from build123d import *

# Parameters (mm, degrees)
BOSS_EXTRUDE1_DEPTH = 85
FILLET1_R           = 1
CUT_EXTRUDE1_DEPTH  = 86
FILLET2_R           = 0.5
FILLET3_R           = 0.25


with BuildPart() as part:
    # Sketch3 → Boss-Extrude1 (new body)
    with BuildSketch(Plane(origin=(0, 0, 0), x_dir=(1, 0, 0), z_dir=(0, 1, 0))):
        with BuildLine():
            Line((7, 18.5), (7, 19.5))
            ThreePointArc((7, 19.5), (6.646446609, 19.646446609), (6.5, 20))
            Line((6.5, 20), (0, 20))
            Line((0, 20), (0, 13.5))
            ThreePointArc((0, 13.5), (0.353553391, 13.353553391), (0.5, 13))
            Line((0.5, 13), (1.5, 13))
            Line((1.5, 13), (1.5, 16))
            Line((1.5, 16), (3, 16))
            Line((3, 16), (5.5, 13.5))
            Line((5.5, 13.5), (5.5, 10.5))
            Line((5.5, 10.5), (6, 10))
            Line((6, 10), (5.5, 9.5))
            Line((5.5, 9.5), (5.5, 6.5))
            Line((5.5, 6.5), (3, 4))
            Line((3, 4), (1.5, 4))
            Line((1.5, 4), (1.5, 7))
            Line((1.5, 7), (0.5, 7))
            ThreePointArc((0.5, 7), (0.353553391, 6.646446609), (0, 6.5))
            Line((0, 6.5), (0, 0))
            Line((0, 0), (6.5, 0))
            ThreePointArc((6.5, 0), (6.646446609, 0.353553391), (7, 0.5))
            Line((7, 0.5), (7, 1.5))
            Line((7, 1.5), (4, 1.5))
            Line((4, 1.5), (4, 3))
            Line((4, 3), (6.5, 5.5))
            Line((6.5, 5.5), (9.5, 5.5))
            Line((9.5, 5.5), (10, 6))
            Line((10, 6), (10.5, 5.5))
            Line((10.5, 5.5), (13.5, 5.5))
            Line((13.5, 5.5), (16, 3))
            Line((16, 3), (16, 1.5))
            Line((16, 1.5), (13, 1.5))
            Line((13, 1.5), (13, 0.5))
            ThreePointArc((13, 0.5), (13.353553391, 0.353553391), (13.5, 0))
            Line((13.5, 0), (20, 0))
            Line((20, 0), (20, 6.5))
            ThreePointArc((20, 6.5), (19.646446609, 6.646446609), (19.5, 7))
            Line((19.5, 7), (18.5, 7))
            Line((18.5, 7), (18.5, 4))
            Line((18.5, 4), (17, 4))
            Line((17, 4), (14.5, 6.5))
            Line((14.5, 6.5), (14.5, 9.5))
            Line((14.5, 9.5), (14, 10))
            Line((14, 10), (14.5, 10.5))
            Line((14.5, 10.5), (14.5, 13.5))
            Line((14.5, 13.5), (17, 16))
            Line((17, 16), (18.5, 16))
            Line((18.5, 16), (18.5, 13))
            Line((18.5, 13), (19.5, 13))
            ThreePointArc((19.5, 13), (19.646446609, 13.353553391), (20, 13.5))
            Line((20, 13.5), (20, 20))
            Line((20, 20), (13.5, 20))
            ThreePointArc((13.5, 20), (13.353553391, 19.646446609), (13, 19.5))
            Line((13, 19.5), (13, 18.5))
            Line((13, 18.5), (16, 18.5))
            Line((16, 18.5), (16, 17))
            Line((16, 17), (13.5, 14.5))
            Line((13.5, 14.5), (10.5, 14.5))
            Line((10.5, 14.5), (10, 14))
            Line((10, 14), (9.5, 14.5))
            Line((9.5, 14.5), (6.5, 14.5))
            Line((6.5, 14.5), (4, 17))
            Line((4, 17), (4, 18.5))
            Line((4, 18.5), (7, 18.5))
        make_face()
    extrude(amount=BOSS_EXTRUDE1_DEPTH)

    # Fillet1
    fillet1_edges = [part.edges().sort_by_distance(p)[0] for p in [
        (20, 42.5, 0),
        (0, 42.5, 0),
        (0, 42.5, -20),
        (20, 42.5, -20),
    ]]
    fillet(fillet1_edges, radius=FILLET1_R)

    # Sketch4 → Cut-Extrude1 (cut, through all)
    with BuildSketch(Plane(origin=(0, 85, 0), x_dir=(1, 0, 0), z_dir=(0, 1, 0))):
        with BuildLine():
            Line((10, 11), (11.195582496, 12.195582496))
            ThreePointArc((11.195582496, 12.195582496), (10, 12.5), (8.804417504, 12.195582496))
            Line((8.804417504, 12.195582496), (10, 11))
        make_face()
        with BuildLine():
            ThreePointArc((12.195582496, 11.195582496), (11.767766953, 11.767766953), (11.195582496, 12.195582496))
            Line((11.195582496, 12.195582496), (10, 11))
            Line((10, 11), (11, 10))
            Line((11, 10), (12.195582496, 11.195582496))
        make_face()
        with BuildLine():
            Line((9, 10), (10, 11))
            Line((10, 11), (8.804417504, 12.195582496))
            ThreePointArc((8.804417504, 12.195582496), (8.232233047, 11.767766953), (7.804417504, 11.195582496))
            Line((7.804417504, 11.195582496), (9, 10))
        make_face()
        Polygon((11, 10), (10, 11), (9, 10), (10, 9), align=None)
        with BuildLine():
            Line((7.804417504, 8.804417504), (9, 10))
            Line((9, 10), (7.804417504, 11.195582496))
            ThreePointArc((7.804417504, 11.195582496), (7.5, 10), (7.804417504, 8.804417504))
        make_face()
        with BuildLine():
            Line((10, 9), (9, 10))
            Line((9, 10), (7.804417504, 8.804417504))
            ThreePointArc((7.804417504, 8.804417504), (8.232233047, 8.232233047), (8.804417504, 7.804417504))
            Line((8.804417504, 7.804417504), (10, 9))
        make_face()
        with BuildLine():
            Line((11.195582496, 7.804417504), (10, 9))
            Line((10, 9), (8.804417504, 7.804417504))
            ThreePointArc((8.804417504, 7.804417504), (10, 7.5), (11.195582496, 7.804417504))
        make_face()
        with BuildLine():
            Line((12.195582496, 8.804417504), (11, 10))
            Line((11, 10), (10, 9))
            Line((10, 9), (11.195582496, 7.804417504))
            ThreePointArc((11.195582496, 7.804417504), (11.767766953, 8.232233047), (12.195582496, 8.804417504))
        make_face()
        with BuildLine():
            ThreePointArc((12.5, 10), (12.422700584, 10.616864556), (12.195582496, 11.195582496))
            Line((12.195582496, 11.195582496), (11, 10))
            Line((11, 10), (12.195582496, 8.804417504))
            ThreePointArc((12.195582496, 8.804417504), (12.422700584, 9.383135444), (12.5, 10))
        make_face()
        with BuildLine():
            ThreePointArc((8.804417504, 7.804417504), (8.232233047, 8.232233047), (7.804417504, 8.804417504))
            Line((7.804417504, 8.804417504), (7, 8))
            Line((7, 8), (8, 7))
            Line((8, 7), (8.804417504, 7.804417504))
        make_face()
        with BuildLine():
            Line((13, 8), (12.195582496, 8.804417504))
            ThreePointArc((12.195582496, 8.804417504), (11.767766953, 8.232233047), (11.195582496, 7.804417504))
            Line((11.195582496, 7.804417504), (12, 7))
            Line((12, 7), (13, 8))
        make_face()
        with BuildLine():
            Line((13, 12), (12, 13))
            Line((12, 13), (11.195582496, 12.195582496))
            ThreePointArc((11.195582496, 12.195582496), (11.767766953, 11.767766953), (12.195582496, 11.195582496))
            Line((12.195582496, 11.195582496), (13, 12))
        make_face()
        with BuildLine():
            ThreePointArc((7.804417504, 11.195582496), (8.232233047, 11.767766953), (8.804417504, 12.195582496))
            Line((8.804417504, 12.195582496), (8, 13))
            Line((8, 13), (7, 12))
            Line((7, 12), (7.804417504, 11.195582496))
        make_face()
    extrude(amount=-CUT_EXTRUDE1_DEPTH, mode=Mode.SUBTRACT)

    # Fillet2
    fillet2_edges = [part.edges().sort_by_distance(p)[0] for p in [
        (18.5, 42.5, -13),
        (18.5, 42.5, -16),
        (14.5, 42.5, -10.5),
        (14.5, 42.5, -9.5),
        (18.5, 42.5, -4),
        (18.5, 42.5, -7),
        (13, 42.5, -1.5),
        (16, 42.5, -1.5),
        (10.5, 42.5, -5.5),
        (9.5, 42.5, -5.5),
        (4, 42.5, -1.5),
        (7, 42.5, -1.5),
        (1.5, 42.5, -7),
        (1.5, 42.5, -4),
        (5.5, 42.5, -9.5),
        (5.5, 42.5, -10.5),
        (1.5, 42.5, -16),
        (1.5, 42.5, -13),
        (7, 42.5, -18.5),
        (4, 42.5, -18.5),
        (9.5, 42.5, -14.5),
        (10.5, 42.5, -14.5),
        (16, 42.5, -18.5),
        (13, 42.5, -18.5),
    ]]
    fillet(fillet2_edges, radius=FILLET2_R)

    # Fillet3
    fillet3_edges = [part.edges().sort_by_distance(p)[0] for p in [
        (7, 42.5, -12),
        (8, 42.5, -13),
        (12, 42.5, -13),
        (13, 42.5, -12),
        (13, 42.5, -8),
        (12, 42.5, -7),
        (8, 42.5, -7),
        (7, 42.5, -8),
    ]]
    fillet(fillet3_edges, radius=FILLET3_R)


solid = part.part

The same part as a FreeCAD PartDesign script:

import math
import FreeCAD as App
import Part
import Sketcher
Q = App.Units.Quantity


def edges_at(feature, points):
    """Names of the edges that pass closest to the given points."""
    edges = feature.Shape.Edges
    near = lambda p: min(range(len(edges)), key=lambda i: edges[i].distToShape(Part.Vertex(*p))[0])
    return sorted({f"Edge{near(p) + 1}" for p in points})

doc = App.newDocument("Part")
body = doc.addObject("PartDesign::Body", "Body")

# Sketch on XZ plane
sketch1 = doc.addObject("Sketcher::SketchObject", "Sketch")
body.addObject(sketch1)
sketch1.AttachmentSupport = (doc.XZ_Plane, [""])
sketch1.MapMode = "FlatFace"
sketch1.addGeometry(Part.LineSegment(App.Vector(7, -18.5, 0), App.Vector(7, -19.5, 0)), False)
sketch1.addGeometry(Part.ArcOfCircle(Part.Circle(App.Vector(7, -20, 0), App.Vector(0, 0, 1), 0.5), math.radians(90), math.radians(180)), False)
sketch1.addGeometry(Part.LineSegment(App.Vector(6.5, -20, 0), App.Vector(0, -20, 0)), False)
sketch1.addGeometry(Part.LineSegment(App.Vector(0, -20, 0), App.Vector(0, -13.5, 0)), False)
sketch1.addGeometry(Part.ArcOfCircle(Part.Circle(App.Vector(0, -13, 0), App.Vector(0, 0, 1), 0.5), math.radians(-90), math.radians(0)), False)
sketch1.addGeometry(Part.LineSegment(App.Vector(0.5, -13, 0), App.Vector(1.5, -13, 0)), False)
sketch1.addGeometry(Part.LineSegment(App.Vector(1.5, -13, 0), App.Vector(1.5, -16, 0)), False)
sketch1.addGeometry(Part.LineSegment(App.Vector(1.5, -16, 0), App.Vector(3, -16, 0)), False)
sketch1.addGeometry(Part.LineSegment(App.Vector(3, -16, 0), App.Vector(5.5, -13.5, 0)), False)
sketch1.addGeometry(Part.LineSegment(App.Vector(5.5, -13.5, 0), App.Vector(5.5, -10.5, 0)), False)
sketch1.addGeometry(Part.LineSegment(App.Vector(5.5, -10.5, 0), App.Vector(6, -10, 0)), False)
sketch1.addGeometry(Part.LineSegment(App.Vector(6, -10, 0), App.Vector(5.5, -9.5, 0)), False)
sketch1.addGeometry(Part.LineSegment(App.Vector(5.5, -9.5, 0), App.Vector(5.5, -6.5, 0)), False)
sketch1.addGeometry(Part.LineSegment(App.Vector(5.5, -6.5, 0), App.Vector(3, -4, 0)), False)
sketch1.addGeometry(Part.LineSegment(App.Vector(3, -4, 0), App.Vector(1.5, -4, 0)), False)
sketch1.addGeometry(Part.LineSegment(App.Vector(1.5, -4, 0), App.Vector(1.5, -7, 0)), False)
sketch1.addGeometry(Part.LineSegment(App.Vector(1.5, -7, 0), App.Vector(0.5, -7, 0)), False)
sketch1.addGeometry(Part.ArcOfCircle(Part.Circle(App.Vector(0, -7, 0), App.Vector(0, 0, 1), 0.5), math.radians(0), math.radians(90)), False)
sketch1.addGeometry(Part.LineSegment(App.Vector(0, -6.5, 0), App.Vector(0, 0, 0)), False)
sketch1.addGeometry(Part.LineSegment(App.Vector(0, 0, 0), App.Vector(6.5, 0, 0)), False)
sketch1.addGeometry(Part.ArcOfCircle(Part.Circle(App.Vector(7, 0, 0), App.Vector(0, 0, 1), 0.5), math.radians(180), math.radians(270)), False)
sketch1.addGeometry(Part.LineSegment(App.Vector(7, -0.5, 0), App.Vector(7, -1.5, 0)), False)
sketch1.addGeometry(Part.LineSegment(App.Vector(7, -1.5, 0), App.Vector(4, -1.5, 0)), False)
sketch1.addGeometry(Part.LineSegment(App.Vector(4, -1.5, 0), App.Vector(4, -3, 0)), False)
sketch1.addGeometry(Part.LineSegment(App.Vector(4, -3, 0), App.Vector(6.5, -5.5, 0)), False)
sketch1.addGeometry(Part.LineSegment(App.Vector(6.5, -5.5, 0), App.Vector(9.5, -5.5, 0)), False)
sketch1.addGeometry(Part.LineSegment(App.Vector(9.5, -5.5, 0), App.Vector(10, -6, 0)), False)
sketch1.addGeometry(Part.LineSegment(App.Vector(10, -6, 0), App.Vector(10.5, -5.5, 0)), False)
sketch1.addGeometry(Part.LineSegment(App.Vector(10.5, -5.5, 0), App.Vector(13.5, -5.5, 0)), False)
sketch1.addGeometry(Part.LineSegment(App.Vector(13.5, -5.5, 0), App.Vector(16, -3, 0)), False)
sketch1.addGeometry(Part.LineSegment(App.Vector(16, -3, 0), App.Vector(16, -1.5, 0)), False)
sketch1.addGeometry(Part.LineSegment(App.Vector(16, -1.5, 0), App.Vector(13, -1.5, 0)), False)
sketch1.addGeometry(Part.LineSegment(App.Vector(13, -1.5, 0), App.Vector(13, -0.5, 0)), False)
sketch1.addGeometry(Part.ArcOfCircle(Part.Circle(App.Vector(13, 0, 0), App.Vector(0, 0, 1), 0.5), math.radians(-90), math.radians(0)), False)
sketch1.addGeometry(Part.LineSegment(App.Vector(13.5, 0, 0), App.Vector(20, 0, 0)), False)
sketch1.addGeometry(Part.LineSegment(App.Vector(20, 0, 0), App.Vector(20, -6.5, 0)), False)
sketch1.addGeometry(Part.ArcOfCircle(Part.Circle(App.Vector(20, -7, 0), App.Vector(0, 0, 1), 0.5), math.radians(90), math.radians(180)), False)
sketch1.addGeometry(Part.LineSegment(App.Vector(19.5, -7, 0), App.Vector(18.5, -7, 0)), False)
sketch1.addGeometry(Part.LineSegment(App.Vector(18.5, -7, 0), App.Vector(18.5, -4, 0)), False)
sketch1.addGeometry(Part.LineSegment(App.Vector(18.5, -4, 0), App.Vector(17, -4, 0)), False)
sketch1.addGeometry(Part.LineSegment(App.Vector(17, -4, 0), App.Vector(14.5, -6.5, 0)), False)
sketch1.addGeometry(Part.LineSegment(App.Vector(14.5, -6.5, 0), App.Vector(14.5, -9.5, 0)), False)
sketch1.addGeometry(Part.LineSegment(App.Vector(14.5, -9.5, 0), App.Vector(14, -10, 0)), False)
sketch1.addGeometry(Part.LineSegment(App.Vector(14, -10, 0), App.Vector(14.5, -10.5, 0)), False)
sketch1.addGeometry(Part.LineSegment(App.Vector(14.5, -10.5, 0), App.Vector(14.5, -13.5, 0)), False)
sketch1.addGeometry(Part.LineSegment(App.Vector(14.5, -13.5, 0), App.Vector(17, -16, 0)), False)
sketch1.addGeometry(Part.LineSegment(App.Vector(17, -16, 0), App.Vector(18.5, -16, 0)), False)
sketch1.addGeometry(Part.LineSegment(App.Vector(18.5, -16, 0), App.Vector(18.5, -13, 0)), False)
sketch1.addGeometry(Part.LineSegment(App.Vector(18.5, -13, 0), App.Vector(19.5, -13, 0)), False)
sketch1.addGeometry(Part.ArcOfCircle(Part.Circle(App.Vector(20, -13, 0), App.Vector(0, 0, 1), 0.5), math.radians(180), math.radians(270)), False)
sketch1.addGeometry(Part.LineSegment(App.Vector(20, -13.5, 0), App.Vector(20, -20, 0)), False)
sketch1.addGeometry(Part.LineSegment(App.Vector(20, -20, 0), App.Vector(13.5, -20, 0)), False)
sketch1.addGeometry(Part.ArcOfCircle(Part.Circle(App.Vector(13, -20, 0), App.Vector(0, 0, 1), 0.5), math.radians(0), math.radians(90)), False)
sketch1.addGeometry(Part.LineSegment(App.Vector(13, -19.5, 0), App.Vector(13, -18.5, 0)), False)
sketch1.addGeometry(Part.LineSegment(App.Vector(13, -18.5, 0), App.Vector(16, -18.5, 0)), False)
sketch1.addGeometry(Part.LineSegment(App.Vector(16, -18.5, 0), App.Vector(16, -17, 0)), False)
sketch1.addGeometry(Part.LineSegment(App.Vector(16, -17, 0), App.Vector(13.5, -14.5, 0)), False)
sketch1.addGeometry(Part.LineSegment(App.Vector(13.5, -14.5, 0), App.Vector(10.5, -14.5, 0)), False)
sketch1.addGeometry(Part.LineSegment(App.Vector(10.5, -14.5, 0), App.Vector(10, -14, 0)), False)
sketch1.addGeometry(Part.LineSegment(App.Vector(10, -14, 0), App.Vector(9.5, -14.5, 0)), False)
sketch1.addGeometry(Part.LineSegment(App.Vector(9.5, -14.5, 0), App.Vector(6.5, -14.5, 0)), False)
sketch1.addGeometry(Part.LineSegment(App.Vector(6.5, -14.5, 0), App.Vector(4, -17, 0)), False)
sketch1.addGeometry(Part.LineSegment(App.Vector(4, -17, 0), App.Vector(4, -18.5, 0)), False)
sketch1.addGeometry(Part.LineSegment(App.Vector(4, -18.5, 0), App.Vector(7, -18.5, 0)), False)
sketch1.addConstraint(Sketcher.Constraint("Coincident", 0, 2, 1, 1))
sketch1.addConstraint(Sketcher.Constraint("Coincident", 1, 2, 2, 1))
sketch1.addConstraint(Sketcher.Constraint("Coincident", 2, 2, 3, 1))
sketch1.addConstraint(Sketcher.Constraint("Coincident", 3, 2, 4, 1))
sketch1.addConstraint(Sketcher.Constraint("Coincident", 4, 2, 5, 1))
sketch1.addConstraint(Sketcher.Constraint("Coincident", 5, 2, 6, 1))
sketch1.addConstraint(Sketcher.Constraint("Coincident", 6, 2, 7, 1))
sketch1.addConstraint(Sketcher.Constraint("Coincident", 7, 2, 8, 1))
sketch1.addConstraint(Sketcher.Constraint("Coincident", 8, 2, 9, 1))
sketch1.addConstraint(Sketcher.Constraint("Coincident", 9, 2, 10, 1))
sketch1.addConstraint(Sketcher.Constraint("Coincident", 10, 2, 11, 1))
sketch1.addConstraint(Sketcher.Constraint("Coincident", 11, 2, 12, 1))
sketch1.addConstraint(Sketcher.Constraint("Coincident", 12, 2, 13, 1))
sketch1.addConstraint(Sketcher.Constraint("Coincident", 13, 2, 14, 1))
sketch1.addConstraint(Sketcher.Constraint("Coincident", 14, 2, 15, 1))
sketch1.addConstraint(Sketcher.Constraint("Coincident", 15, 2, 16, 1))
sketch1.addConstraint(Sketcher.Constraint("Coincident", 16, 2, 17, 1))
sketch1.addConstraint(Sketcher.Constraint("Coincident", 17, 2, 18, 1))
sketch1.addConstraint(Sketcher.Constraint("Coincident", 18, 2, 19, 1))
sketch1.addConstraint(Sketcher.Constraint("Coincident", 19, 2, 20, 1))
sketch1.addConstraint(Sketcher.Constraint("Coincident", 20, 2, 21, 1))
sketch1.addConstraint(Sketcher.Constraint("Coincident", 21, 2, 22, 1))
sketch1.addConstraint(Sketcher.Constraint("Coincident", 22, 2, 23, 1))
sketch1.addConstraint(Sketcher.Constraint("Coincident", 23, 2, 24, 1))
sketch1.addConstraint(Sketcher.Constraint("Coincident", 24, 2, 25, 1))
sketch1.addConstraint(Sketcher.Constraint("Coincident", 25, 2, 26, 1))
sketch1.addConstraint(Sketcher.Constraint("Coincident", 26, 2, 27, 1))
sketch1.addConstraint(Sketcher.Constraint("Coincident", 27, 2, 28, 1))
sketch1.addConstraint(Sketcher.Constraint("Coincident", 28, 2, 29, 1))
sketch1.addConstraint(Sketcher.Constraint("Coincident", 29, 2, 30, 1))
sketch1.addConstraint(Sketcher.Constraint("Coincident", 30, 2, 31, 1))
sketch1.addConstraint(Sketcher.Constraint("Coincident", 31, 2, 32, 1))
sketch1.addConstraint(Sketcher.Constraint("Coincident", 32, 2, 33, 1))
sketch1.addConstraint(Sketcher.Constraint("Coincident", 33, 2, 34, 1))
sketch1.addConstraint(Sketcher.Constraint("Coincident", 34, 2, 35, 1))
sketch1.addConstraint(Sketcher.Constraint("Coincident", 35, 2, 36, 1))
sketch1.addConstraint(Sketcher.Constraint("Coincident", 36, 2, 37, 1))
sketch1.addConstraint(Sketcher.Constraint("Coincident", 37, 2, 38, 1))
sketch1.addConstraint(Sketcher.Constraint("Coincident", 38, 2, 39, 1))
sketch1.addConstraint(Sketcher.Constraint("Coincident", 39, 2, 40, 1))
sketch1.addConstraint(Sketcher.Constraint("Coincident", 40, 2, 41, 1))
sketch1.addConstraint(Sketcher.Constraint("Coincident", 41, 2, 42, 1))
sketch1.addConstraint(Sketcher.Constraint("Coincident", 42, 2, 43, 1))
sketch1.addConstraint(Sketcher.Constraint("Coincident", 43, 2, 44, 1))
sketch1.addConstraint(Sketcher.Constraint("Coincident", 44, 2, 45, 1))
sketch1.addConstraint(Sketcher.Constraint("Coincident", 45, 2, 46, 1))
sketch1.addConstraint(Sketcher.Constraint("Coincident", 46, 2, 47, 1))
sketch1.addConstraint(Sketcher.Constraint("Coincident", 47, 2, 48, 1))
sketch1.addConstraint(Sketcher.Constraint("Coincident", 48, 2, 49, 1))
sketch1.addConstraint(Sketcher.Constraint("Coincident", 49, 2, 50, 1))
sketch1.addConstraint(Sketcher.Constraint("Coincident", 50, 2, 51, 1))
sketch1.addConstraint(Sketcher.Constraint("Coincident", 51, 2, 52, 1))
sketch1.addConstraint(Sketcher.Constraint("Coincident", 52, 2, 53, 1))
sketch1.addConstraint(Sketcher.Constraint("Coincident", 53, 2, 54, 1))
sketch1.addConstraint(Sketcher.Constraint("Coincident", 54, 2, 55, 1))
sketch1.addConstraint(Sketcher.Constraint("Coincident", 55, 2, 56, 1))
sketch1.addConstraint(Sketcher.Constraint("Coincident", 56, 2, 57, 1))
sketch1.addConstraint(Sketcher.Constraint("Coincident", 57, 2, 58, 1))
sketch1.addConstraint(Sketcher.Constraint("Coincident", 58, 2, 59, 1))
sketch1.addConstraint(Sketcher.Constraint("Coincident", 59, 2, 60, 1))
sketch1.addConstraint(Sketcher.Constraint("Coincident", 60, 2, 61, 1))
sketch1.addConstraint(Sketcher.Constraint("Coincident", 61, 2, 62, 1))
sketch1.addConstraint(Sketcher.Constraint("Coincident", 62, 2, 63, 1))
sketch1.addConstraint(Sketcher.Constraint("Coincident", 63, 2, 0, 1))
sketch1.addConstraint(Sketcher.Constraint("Vertical", 0))
sketch1.addConstraint(Sketcher.Constraint("Horizontal", 2))
sketch1.addConstraint(Sketcher.Constraint("Vertical", 3))
sketch1.addConstraint(Sketcher.Constraint("Horizontal", 5))
sketch1.addConstraint(Sketcher.Constraint("Vertical", 6))
sketch1.addConstraint(Sketcher.Constraint("Horizontal", 7))
sketch1.addConstraint(Sketcher.Constraint("Vertical", 9))
sketch1.addConstraint(Sketcher.Constraint("Vertical", 12))
sketch1.addConstraint(Sketcher.Constraint("Horizontal", 14))
sketch1.addConstraint(Sketcher.Constraint("Vertical", 15))
sketch1.addConstraint(Sketcher.Constraint("Horizontal", 16))
sketch1.addConstraint(Sketcher.Constraint("Vertical", 18))
sketch1.addConstraint(Sketcher.Constraint("Horizontal", 19))
sketch1.addConstraint(Sketcher.Constraint("Vertical", 21))
sketch1.addConstraint(Sketcher.Constraint("Horizontal", 22))
sketch1.addConstraint(Sketcher.Constraint("Vertical", 23))
sketch1.addConstraint(Sketcher.Constraint("Horizontal", 25))
sketch1.addConstraint(Sketcher.Constraint("Horizontal", 28))
sketch1.addConstraint(Sketcher.Constraint("Vertical", 30))
sketch1.addConstraint(Sketcher.Constraint("Horizontal", 31))
sketch1.addConstraint(Sketcher.Constraint("Vertical", 32))
sketch1.addConstraint(Sketcher.Constraint("Horizontal", 34))
sketch1.addConstraint(Sketcher.Constraint("Vertical", 35))
sketch1.addConstraint(Sketcher.Constraint("Horizontal", 37))
sketch1.addConstraint(Sketcher.Constraint("Vertical", 38))
sketch1.addConstraint(Sketcher.Constraint("Horizontal", 39))
sketch1.addConstraint(Sketcher.Constraint("Vertical", 41))
sketch1.addConstraint(Sketcher.Constraint("Vertical", 44))
sketch1.addConstraint(Sketcher.Constraint("Horizontal", 46))
sketch1.addConstraint(Sketcher.Constraint("Vertical", 47))
sketch1.addConstraint(Sketcher.Constraint("Horizontal", 48))
sketch1.addConstraint(Sketcher.Constraint("Vertical", 50))
sketch1.addConstraint(Sketcher.Constraint("Horizontal", 51))
sketch1.addConstraint(Sketcher.Constraint("Vertical", 53))
sketch1.addConstraint(Sketcher.Constraint("Horizontal", 54))
sketch1.addConstraint(Sketcher.Constraint("Vertical", 55))
sketch1.addConstraint(Sketcher.Constraint("Horizontal", 57))
sketch1.addConstraint(Sketcher.Constraint("Horizontal", 60))
sketch1.addConstraint(Sketcher.Constraint("Vertical", 62))
sketch1.addConstraint(Sketcher.Constraint("Horizontal", 63))
sketch1.addConstraint(Sketcher.Constraint("Coincident", 18, 2, -1, 1))
sketch1.addConstraint(Sketcher.Constraint("Equal", 1, 4))
sketch1.addConstraint(Sketcher.Constraint("Equal", 4, 17))
sketch1.addConstraint(Sketcher.Constraint("Equal", 17, 20))
sketch1.addConstraint(Sketcher.Constraint("Equal", 20, 33))
sketch1.addConstraint(Sketcher.Constraint("Equal", 33, 36))
sketch1.addConstraint(Sketcher.Constraint("Equal", 36, 49))
sketch1.addConstraint(Sketcher.Constraint("Equal", 49, 52))
sketch1.addConstraint(Sketcher.Constraint("PointOnObject", 4, 3, -2))
sketch1.addConstraint(Sketcher.Constraint("PointOnObject", 17, 3, -2))
sketch1.addConstraint(Sketcher.Constraint("PointOnObject", 20, 3, -1))
sketch1.addConstraint(Sketcher.Constraint("PointOnObject", 33, 3, -1))
sketch1.addConstraint(Sketcher.Constraint("PointOnObject", 2, 2, -2))
sketch1.addConstraint(Sketcher.Constraint("PointOnObject", 33, 2, -1))
sketch1.addConstraint(Sketcher.Constraint("Parallel", 8, 10))
sketch1.addConstraint(Sketcher.Constraint("Perpendicular", 10, 11))
sketch1.addConstraint(Sketcher.Constraint("Parallel", 11, 13))
sketch1.addConstraint(Sketcher.Constraint("Parallel", 13, 24))
sketch1.addConstraint(Sketcher.Constraint("Parallel", 24, 26))
sketch1.addConstraint(Sketcher.Constraint("Perpendicular", 26, 27))
sketch1.addConstraint(Sketcher.Constraint("Parallel", 27, 29))
sketch1.addConstraint(Sketcher.Constraint("Parallel", 29, 40))
sketch1.addConstraint(Sketcher.Constraint("Parallel", 40, 42))
sketch1.addConstraint(Sketcher.Constraint("Perpendicular", 42, 43))
sketch1.addConstraint(Sketcher.Constraint("Parallel", 43, 45))
sketch1.addConstraint(Sketcher.Constraint("Parallel", 45, 56))
sketch1.addConstraint(Sketcher.Constraint("Parallel", 56, 58))
sketch1.addConstraint(Sketcher.Constraint("Perpendicular", 58, 59))
sketch1.addConstraint(Sketcher.Constraint("Parallel", 59, 61))
sketch1.addConstraint(Sketcher.Constraint("Horizontal", 17, 3, 36, 3))
sketch1.addConstraint(Sketcher.Constraint("Horizontal", 4, 3, 49, 3))
sketch1.addConstraint(Sketcher.Constraint("Horizontal", 1, 3, 52, 3))
sketch1.addConstraint(Sketcher.Constraint("Horizontal", 52, 3, 1, 2))
sketch1.addConstraint(Sketcher.Constraint("Horizontal", 49, 3, 4, 2))
sketch1.addConstraint(Sketcher.Constraint("Horizontal", 3, 2, 8, 2))
sketch1.addConstraint(Sketcher.Constraint("Horizontal", 36, 3, 15, 2))
sketch1.addConstraint(Sketcher.Constraint("Horizontal", 12, 2, 17, 2))
sketch1.addConstraint(Sketcher.Constraint("Horizontal", 25, 2, 27, 2))
sketch1.addConstraint(Sketcher.Constraint("Horizontal", 23, 2, 29, 2))
sketch1.addConstraint(Sketcher.Constraint("Horizontal", 22, 2, 30, 2))
sketch1.addConstraint(Sketcher.Constraint("Horizontal", 16, 2, 36, 2))
sketch1.addConstraint(Sketcher.Constraint("Horizontal", 14, 2, 38, 2))
sketch1.addConstraint(Sketcher.Constraint("Horizontal", 35, 2, 40, 2))
sketch1.addConstraint(Sketcher.Constraint("Horizontal", 11, 2, 41, 2))
sketch1.addConstraint(Sketcher.Constraint("Horizontal", 10, 2, 42, 2))
sketch1.addConstraint(Sketcher.Constraint("Horizontal", 9, 2, 43, 2))
sketch1.addConstraint(Sketcher.Constraint("Horizontal", 8, 2, 44, 2))
sketch1.addConstraint(Sketcher.Constraint("Horizontal", 7, 2, 45, 2))
sketch1.addConstraint(Sketcher.Constraint("Horizontal", 5, 2, 47, 2))
sketch1.addConstraint(Sketcher.Constraint("Horizontal", 2, 2, 50, 2))
sketch1.addConstraint(Sketcher.Constraint("Horizontal", 57, 2, 59, 2))
sketch1.addConstraint(Sketcher.Constraint("Horizontal", 55, 2, 61, 2))
sketch1.addConstraint(Sketcher.Constraint("Horizontal", 54, 2, 62, 2))
sketch1.addConstraint(Sketcher.Constraint("Vertical", 1, 3, 20, 3))
sketch1.addConstraint(Sketcher.Constraint("Vertical", 36, 3, 49, 3))
sketch1.addConstraint(Sketcher.Constraint("Vertical", 33, 3, 52, 3))
sketch1.addConstraint(Sketcher.Constraint("Vertical", 20, 3, 0, 2))
sketch1.addConstraint(Sketcher.Constraint("Vertical", 9, 2, 11, 2))
sketch1.addConstraint(Sketcher.Constraint("Vertical", 7, 2, 13, 2))
sketch1.addConstraint(Sketcher.Constraint("Vertical", 6, 2, 14, 2))
sketch1.addConstraint(Sketcher.Constraint("Vertical", 0, 2, 20, 2))
sketch1.addConstraint(Sketcher.Constraint("Vertical", 19, 2, 24, 2))
sketch1.addConstraint(Sketcher.Constraint("Vertical", 52, 3, 31, 2))
sketch1.addConstraint(Sketcher.Constraint("Vertical", 28, 2, 33, 2))
sketch1.addConstraint(Sketcher.Constraint("Vertical", 49, 3, 34, 2))
sketch1.addConstraint(Sketcher.Constraint("Vertical", 41, 2, 43, 2))
sketch1.addConstraint(Sketcher.Constraint("Vertical", 38, 2, 46, 2))
sketch1.addConstraint(Sketcher.Constraint("Vertical", 35, 2, 49, 2))
sketch1.addConstraint(Sketcher.Constraint("Vertical", 32, 2, 52, 2))
sketch1.addConstraint(Sketcher.Constraint("Vertical", 30, 2, 54, 2))
sketch1.addConstraint(Sketcher.Constraint("Vertical", 51, 2, 56, 2))
sketch1.addConstraint(Sketcher.Constraint("Vertical", 27, 2, 57, 2))
sketch1.addConstraint(Sketcher.Constraint("Vertical", 26, 2, 58, 2))
sketch1.addConstraint(Sketcher.Constraint("Vertical", 24, 2, 60, 2))
sketch1.addConstraint(Sketcher.Constraint("Equal", 22, 25))
sketch1.addConstraint(Sketcher.Constraint("Equal", 25, 28))
sketch1.addConstraint(Sketcher.Constraint("Equal", 19, 34))
sketch1.addConstraint(Sketcher.Constraint("Equal", 16, 37))
sketch1.addConstraint(Sketcher.Constraint("Equal", 14, 39))
sketch1.addConstraint(Sketcher.Constraint("Equal", 48, 0))
sketch1.addConstraint(Sketcher.Constraint("Equal", 51, 3))
sketch1.addConstraint(Sketcher.Constraint("Equal", 63, 6))
sketch1.addConstraint(Sketcher.Constraint("Equal", 6, 9))
sketch1.addConstraint(Sketcher.Constraint("Equal", 9, 12))
sketch1.addConstraint(Sketcher.Constraint("Equal", 3, 18))
sketch1.addConstraint(Sketcher.Constraint("Equal", 0, 21))
sketch1.addConstraint(Sketcher.Constraint("Equal", 46, 23))
sketch1.addConstraint(Sketcher.Constraint("Equal", 30, 55))
sketch1.addConstraint(Sketcher.Constraint("Equal", 11, 26))
sketch1.addConstraint(Sketcher.Constraint("Radius", 1, Q("0.5 mm")))
sketch1.addConstraint(Sketcher.Constraint("DistanceX", 5, 1, 5, 2, Q("1 mm")))
sketch1.addConstraint(Sketcher.Constraint("DistanceX", 22, 2, 22, 1, Q("3 mm")))
sketch1.addConstraint(Sketcher.Constraint("DistanceX", 2, 2, 2, 1, Q("6.5 mm")))
sketch1.addConstraint(Sketcher.Constraint("DistanceX", 7, 1, 7, 2, Q("1.5 mm")))
sketch1.addConstraint(Sketcher.Constraint("DistanceY", 1, 3, -1, 1, Q("20 mm")))
pad1 = doc.addObject("PartDesign::Pad", "Pad")
body.addObject(pad1)
pad1.Profile = sketch1
pad1.Length = 85
pad1.Reversed = True
doc.recompute()

fillet = doc.addObject("PartDesign::Fillet", "Fillet")
body.addObject(fillet)
fillet.Base = (pad1, edges_at(pad1, [
    (20, 42.5, 0),
    (0, 42.5, 0),
    (0, 42.5, -20),
    (20, 42.5, -20),
]))
fillet.Radius = 1

# Sketch on XZ plane
sketch2 = doc.addObject("Sketcher::SketchObject", "Sketch001")
body.addObject(sketch2)
sketch2.AttachmentSupport = (doc.XZ_Plane, [""])
sketch2.MapMode = "FlatFace"
sketch2.AttachmentOffset = App.Placement(App.Vector(0, 0, -85), App.Rotation())
sketch2.addGeometry(Part.ArcOfCircle(Part.Circle(App.Vector(10, -10, 0), App.Vector(0, 0, 1), 2.5), math.radians(-119), math.radians(-61)), False)
sketch2.addGeometry(Part.LineSegment(App.Vector(8.8, -12.2, 0), App.Vector(8, -13, 0)), False)
sketch2.addGeometry(Part.LineSegment(App.Vector(8, -13, 0), App.Vector(7, -12, 0)), False)
sketch2.addGeometry(Part.LineSegment(App.Vector(7, -12, 0), App.Vector(7.8, -11.2, 0)), False)
sketch2.addGeometry(Part.ArcOfCircle(Part.Circle(App.Vector(10, -10, 0), App.Vector(0, 0, 1), 2.5), math.radians(151), math.radians(209)), False)
sketch2.addGeometry(Part.LineSegment(App.Vector(7.8, -8.8, 0), App.Vector(7, -8, 0)), False)
sketch2.addGeometry(Part.LineSegment(App.Vector(7, -8, 0), App.Vector(8, -7, 0)), False)
sketch2.addGeometry(Part.LineSegment(App.Vector(8, -7, 0), App.Vector(8.8, -7.8, 0)), False)
sketch2.addGeometry(Part.ArcOfCircle(Part.Circle(App.Vector(10, -10, 0), App.Vector(0, 0, 1), 2.5), math.radians(61), math.radians(119)), False)
sketch2.addGeometry(Part.LineSegment(App.Vector(11.2, -7.8, 0), App.Vector(12, -7, 0)), False)
sketch2.addGeometry(Part.LineSegment(App.Vector(12, -7, 0), App.Vector(13, -8, 0)), False)
sketch2.addGeometry(Part.LineSegment(App.Vector(13, -8, 0), App.Vector(12.2, -8.8, 0)), False)
sketch2.addGeometry(Part.ArcOfCircle(Part.Circle(App.Vector(10, -10, 0), App.Vector(0, 0, 1), 2.5), math.radians(0), math.radians(29)), False)
sketch2.addGeometry(Part.ArcOfCircle(Part.Circle(App.Vector(10, -10, 0), App.Vector(0, 0, 1), 2.5), math.radians(-29), math.radians(0)), False)
sketch2.addGeometry(Part.LineSegment(App.Vector(12.2, -11.2, 0), App.Vector(13, -12, 0)), False)
sketch2.addGeometry(Part.LineSegment(App.Vector(13, -12, 0), App.Vector(12, -13, 0)), False)
sketch2.addGeometry(Part.LineSegment(App.Vector(12, -13, 0), App.Vector(11.2, -12.2, 0)), False)
sketch2.addConstraint(Sketcher.Constraint("Coincident", 0, 1, 1, 1))
sketch2.addConstraint(Sketcher.Constraint("Coincident", 1, 2, 2, 1))
sketch2.addConstraint(Sketcher.Constraint("Coincident", 2, 2, 3, 1))
sketch2.addConstraint(Sketcher.Constraint("Coincident", 3, 2, 4, 2))
sketch2.addConstraint(Sketcher.Constraint("Coincident", 4, 1, 5, 1))
sketch2.addConstraint(Sketcher.Constraint("Coincident", 5, 2, 6, 1))
sketch2.addConstraint(Sketcher.Constraint("Coincident", 6, 2, 7, 1))
sketch2.addConstraint(Sketcher.Constraint("Coincident", 7, 2, 8, 2))
sketch2.addConstraint(Sketcher.Constraint("Coincident", 8, 1, 9, 1))
sketch2.addConstraint(Sketcher.Constraint("Coincident", 9, 2, 10, 1))
sketch2.addConstraint(Sketcher.Constraint("Coincident", 10, 2, 11, 1))
sketch2.addConstraint(Sketcher.Constraint("Coincident", 11, 2, 12, 2))
sketch2.addConstraint(Sketcher.Constraint("Tangent", 12, 1, 13, 2))
sketch2.addConstraint(Sketcher.Constraint("Coincident", 13, 1, 14, 1))
sketch2.addConstraint(Sketcher.Constraint("Coincident", 14, 2, 15, 1))
sketch2.addConstraint(Sketcher.Constraint("Coincident", 15, 2, 16, 1))
sketch2.addConstraint(Sketcher.Constraint("Coincident", 16, 2, 0, 2))
sketch2.addConstraint(Sketcher.Constraint("Coincident", 4, 3, 0, 3))
sketch2.addConstraint(Sketcher.Constraint("Coincident", 8, 3, 0, 3))
sketch2.addConstraint(Sketcher.Constraint("Coincident", 12, 3, 0, 3))
sketch2.addConstraint(Sketcher.Constraint("Equal", 0, 4))
sketch2.addConstraint(Sketcher.Constraint("Equal", 4, 8))
sketch2.addConstraint(Sketcher.Constraint("Equal", 8, 12))
sketch2.addConstraint(Sketcher.Constraint("Equal", 12, 13))
sketch2.addConstraint(Sketcher.Constraint("Perpendicular", 1, 2))
sketch2.addConstraint(Sketcher.Constraint("Perpendicular", 2, 3))
sketch2.addConstraint(Sketcher.Constraint("Perpendicular", 3, 5))
sketch2.addConstraint(Sketcher.Constraint("Perpendicular", 5, 6))
sketch2.addConstraint(Sketcher.Constraint("Perpendicular", 6, 7))
sketch2.addConstraint(Sketcher.Constraint("Perpendicular", 7, 9))
sketch2.addConstraint(Sketcher.Constraint("Perpendicular", 9, 10))
sketch2.addConstraint(Sketcher.Constraint("Perpendicular", 10, 11))
sketch2.addConstraint(Sketcher.Constraint("Perpendicular", 11, 14))
sketch2.addConstraint(Sketcher.Constraint("Perpendicular", 14, 15))
sketch2.addConstraint(Sketcher.Constraint("Perpendicular", 15, 16))
sketch2.addConstraint(Sketcher.Constraint("Horizontal", 7, 2, 8, 1))
sketch2.addConstraint(Sketcher.Constraint("Horizontal", 6, 2, 9, 2))
sketch2.addConstraint(Sketcher.Constraint("Horizontal", 5, 2, 10, 2))
sketch2.addConstraint(Sketcher.Constraint("Horizontal", 4, 1, 11, 2))
sketch2.addConstraint(Sketcher.Constraint("Horizontal", 13, 3, 12, 1))
sketch2.addConstraint(Sketcher.Constraint("Horizontal", 3, 2, 13, 1))
sketch2.addConstraint(Sketcher.Constraint("Horizontal", 2, 2, 14, 2))
sketch2.addConstraint(Sketcher.Constraint("Horizontal", 1, 2, 15, 2))
sketch2.addConstraint(Sketcher.Constraint("Vertical", 3, 2, 4, 1))
sketch2.addConstraint(Sketcher.Constraint("Vertical", 2, 2, 5, 2))
sketch2.addConstraint(Sketcher.Constraint("Vertical", 1, 2, 6, 2))
sketch2.addConstraint(Sketcher.Constraint("Equal", 1, 3))
sketch2.addConstraint(Sketcher.Constraint("Radius", 0, Q("2.5 mm")))
sketch2.addConstraint(Sketcher.Constraint("DistanceX", -1, 1, 0, 3, Q("10 mm")))
sketch2.addConstraint(Sketcher.Constraint("DistanceY", 0, 3, -1, 1, Q("10 mm")))
sketch2.addConstraint(Sketcher.Constraint("DistanceX", -1, 1, 1, 2, Q("8 mm")))
sketch2.addConstraint(Sketcher.Constraint("DistanceY", 1, 2, -1, 1, Q("13 mm")))
pocket1 = doc.addObject("PartDesign::Pocket", "Pocket")
body.addObject(pocket1)
pocket1.Profile = sketch2
pocket1.Type = "ThroughAll"
pocket1.Reversed = True
doc.recompute()

fillet2 = doc.addObject("PartDesign::Fillet", "Fillet001")
body.addObject(fillet2)
fillet2.Base = (pocket1, edges_at(pocket1, [
    (18.5, 42.5, -13),
    (18.5, 42.5, -16),
    (14.5, 42.5, -10.5),
    (14.5, 42.5, -9.5),
    (18.5, 42.5, -4),
    (18.5, 42.5, -7),
    (13, 42.5, -1.5),
    (16, 42.5, -1.5),
    (10.5, 42.5, -5.5),
    (9.5, 42.5, -5.5),
    (4, 42.5, -1.5),
    (7, 42.5, -1.5),
    (1.5, 42.5, -7),
    (1.5, 42.5, -4),
    (5.5, 42.5, -9.5),
    (5.5, 42.5, -10.5),
    (1.5, 42.5, -16),
    (1.5, 42.5, -13),
    (7, 42.5, -18.5),
    (4, 42.5, -18.5),
    (9.5, 42.5, -14.5),
    (10.5, 42.5, -14.5),
    (16, 42.5, -18.5),
    (13, 42.5, -18.5),
]))
fillet2.Radius = 0.5
doc.recompute()

fillet3 = doc.addObject("PartDesign::Fillet", "Fillet002")
body.addObject(fillet3)
fillet3.Base = (fillet2, edges_at(fillet2, [
    (7, 42.5, -12),
    (8, 42.5, -13),
    (12, 42.5, -13),
    (13, 42.5, -12),
    (13, 42.5, -8),
    (12, 42.5, -7),
    (8, 42.5, -7),
    (7, 42.5, -8),
]))
fillet3.Radius = 0.25

doc.recompute()
